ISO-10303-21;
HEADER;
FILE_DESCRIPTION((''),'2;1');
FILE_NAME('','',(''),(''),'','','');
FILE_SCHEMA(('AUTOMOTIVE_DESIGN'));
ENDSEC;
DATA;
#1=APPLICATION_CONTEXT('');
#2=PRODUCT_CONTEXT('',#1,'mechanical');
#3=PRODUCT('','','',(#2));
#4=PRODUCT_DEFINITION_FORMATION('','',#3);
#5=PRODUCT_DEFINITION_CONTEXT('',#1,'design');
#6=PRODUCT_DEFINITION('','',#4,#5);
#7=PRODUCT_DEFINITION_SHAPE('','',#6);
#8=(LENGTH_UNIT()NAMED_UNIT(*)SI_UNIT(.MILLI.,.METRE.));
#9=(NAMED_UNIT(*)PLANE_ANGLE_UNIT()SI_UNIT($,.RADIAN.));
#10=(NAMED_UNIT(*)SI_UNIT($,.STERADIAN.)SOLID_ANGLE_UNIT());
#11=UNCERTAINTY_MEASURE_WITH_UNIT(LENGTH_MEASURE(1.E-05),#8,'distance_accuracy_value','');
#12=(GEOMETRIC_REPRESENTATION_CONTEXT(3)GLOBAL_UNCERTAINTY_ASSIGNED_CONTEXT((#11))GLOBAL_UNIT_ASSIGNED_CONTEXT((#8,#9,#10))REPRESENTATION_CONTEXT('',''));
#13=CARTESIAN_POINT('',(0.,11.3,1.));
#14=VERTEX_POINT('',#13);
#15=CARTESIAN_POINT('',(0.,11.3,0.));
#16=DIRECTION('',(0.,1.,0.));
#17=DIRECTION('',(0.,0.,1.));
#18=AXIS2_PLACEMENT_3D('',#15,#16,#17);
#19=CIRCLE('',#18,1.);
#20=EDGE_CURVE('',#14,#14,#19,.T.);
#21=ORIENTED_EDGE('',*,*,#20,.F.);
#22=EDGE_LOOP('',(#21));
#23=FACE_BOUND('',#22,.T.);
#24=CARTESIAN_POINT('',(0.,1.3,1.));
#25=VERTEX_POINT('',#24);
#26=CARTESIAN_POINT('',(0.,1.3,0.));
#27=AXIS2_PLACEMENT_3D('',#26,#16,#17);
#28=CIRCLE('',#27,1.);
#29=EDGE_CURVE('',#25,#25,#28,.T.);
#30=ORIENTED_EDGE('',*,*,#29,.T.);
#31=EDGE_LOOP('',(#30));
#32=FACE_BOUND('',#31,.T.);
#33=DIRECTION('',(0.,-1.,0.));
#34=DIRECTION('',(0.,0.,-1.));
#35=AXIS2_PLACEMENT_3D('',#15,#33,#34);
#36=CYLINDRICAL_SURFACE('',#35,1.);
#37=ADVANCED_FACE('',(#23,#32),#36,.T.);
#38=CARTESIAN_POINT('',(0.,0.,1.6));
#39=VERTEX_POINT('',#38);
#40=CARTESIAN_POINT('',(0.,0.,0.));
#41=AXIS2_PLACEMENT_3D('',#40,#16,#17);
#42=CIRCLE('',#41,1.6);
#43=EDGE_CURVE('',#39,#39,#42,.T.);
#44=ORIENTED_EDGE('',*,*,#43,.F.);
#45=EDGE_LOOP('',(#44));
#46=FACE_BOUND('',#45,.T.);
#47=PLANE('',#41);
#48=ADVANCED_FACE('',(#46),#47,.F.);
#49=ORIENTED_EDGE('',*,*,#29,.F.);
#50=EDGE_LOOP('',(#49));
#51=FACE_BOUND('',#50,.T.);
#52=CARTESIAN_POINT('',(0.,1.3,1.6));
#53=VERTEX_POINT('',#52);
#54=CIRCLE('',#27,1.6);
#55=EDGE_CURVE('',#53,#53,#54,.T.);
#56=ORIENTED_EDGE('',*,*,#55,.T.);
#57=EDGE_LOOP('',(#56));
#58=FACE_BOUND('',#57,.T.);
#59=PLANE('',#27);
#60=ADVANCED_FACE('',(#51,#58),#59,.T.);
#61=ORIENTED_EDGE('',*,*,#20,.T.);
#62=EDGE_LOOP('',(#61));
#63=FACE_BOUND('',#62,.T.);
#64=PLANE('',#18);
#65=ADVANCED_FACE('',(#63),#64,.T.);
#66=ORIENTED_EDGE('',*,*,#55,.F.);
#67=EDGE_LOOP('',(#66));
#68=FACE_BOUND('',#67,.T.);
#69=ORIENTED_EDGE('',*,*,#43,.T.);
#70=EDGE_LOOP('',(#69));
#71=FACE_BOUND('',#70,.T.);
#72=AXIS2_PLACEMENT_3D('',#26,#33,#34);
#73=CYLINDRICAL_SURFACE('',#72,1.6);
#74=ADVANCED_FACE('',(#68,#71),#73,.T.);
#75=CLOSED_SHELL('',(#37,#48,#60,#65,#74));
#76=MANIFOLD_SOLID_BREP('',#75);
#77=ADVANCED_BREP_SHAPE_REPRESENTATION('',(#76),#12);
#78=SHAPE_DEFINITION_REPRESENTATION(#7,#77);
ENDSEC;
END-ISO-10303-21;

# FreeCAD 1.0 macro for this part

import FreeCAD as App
import Part
import Sketcher
Q = App.Units.Quantity

doc = App.newDocument("Part")
body = doc.addObject("PartDesign::Body", "Body")

# Sketch on XZ plane
sketch1 = body.newObject("Sketcher::SketchObject", "Sketch")
sketch1.AttachmentSupport = (doc.getObject("XZ_Plane"), [""])
sketch1.MapMode = "FlatFace"
sketch1.addGeometry(Part.Circle(App.Vector(0, 0, 0), App.Vector(0, 0, 1), 1.6), False)
sketch1.addConstraint(Sketcher.Constraint("Coincident", 0, 3, -1, 1))
sketch1.addConstraint(Sketcher.Constraint("Diameter", 0, Q("3.2 mm")))
pad1 = body.newObject("PartDesign::Pad", "Pad")
pad1.Profile = sketch1
pad1.Length = 1.3
pad1.Reversed = True

# Sketch on XZ plane
sketch2 = body.newObject("Sketcher::SketchObject", "Sketch001")
sketch2.AttachmentSupport = (doc.getObject("XZ_Plane"), [""])
sketch2.MapMode = "FlatFace"
sketch2.AttachmentOffset = App.Placement(App.Vector(0, 0, -1.3), App.Rotation())
sketch2.addGeometry(Part.Circle(App.Vector(0, 0, 0), App.Vector(0, 0, 1), 1), False)
sketch2.addConstraint(Sketcher.Constraint("Coincident", 0, 3, -1, 1))
sketch2.addConstraint(Sketcher.Constraint("Diameter", 0, Q("2 mm")))
pad2 = body.newObject("PartDesign::Pad", "Pad001")
pad2.Profile = sketch2
pad2.Length = 10
pad2.Reversed = True

doc.recompute()
